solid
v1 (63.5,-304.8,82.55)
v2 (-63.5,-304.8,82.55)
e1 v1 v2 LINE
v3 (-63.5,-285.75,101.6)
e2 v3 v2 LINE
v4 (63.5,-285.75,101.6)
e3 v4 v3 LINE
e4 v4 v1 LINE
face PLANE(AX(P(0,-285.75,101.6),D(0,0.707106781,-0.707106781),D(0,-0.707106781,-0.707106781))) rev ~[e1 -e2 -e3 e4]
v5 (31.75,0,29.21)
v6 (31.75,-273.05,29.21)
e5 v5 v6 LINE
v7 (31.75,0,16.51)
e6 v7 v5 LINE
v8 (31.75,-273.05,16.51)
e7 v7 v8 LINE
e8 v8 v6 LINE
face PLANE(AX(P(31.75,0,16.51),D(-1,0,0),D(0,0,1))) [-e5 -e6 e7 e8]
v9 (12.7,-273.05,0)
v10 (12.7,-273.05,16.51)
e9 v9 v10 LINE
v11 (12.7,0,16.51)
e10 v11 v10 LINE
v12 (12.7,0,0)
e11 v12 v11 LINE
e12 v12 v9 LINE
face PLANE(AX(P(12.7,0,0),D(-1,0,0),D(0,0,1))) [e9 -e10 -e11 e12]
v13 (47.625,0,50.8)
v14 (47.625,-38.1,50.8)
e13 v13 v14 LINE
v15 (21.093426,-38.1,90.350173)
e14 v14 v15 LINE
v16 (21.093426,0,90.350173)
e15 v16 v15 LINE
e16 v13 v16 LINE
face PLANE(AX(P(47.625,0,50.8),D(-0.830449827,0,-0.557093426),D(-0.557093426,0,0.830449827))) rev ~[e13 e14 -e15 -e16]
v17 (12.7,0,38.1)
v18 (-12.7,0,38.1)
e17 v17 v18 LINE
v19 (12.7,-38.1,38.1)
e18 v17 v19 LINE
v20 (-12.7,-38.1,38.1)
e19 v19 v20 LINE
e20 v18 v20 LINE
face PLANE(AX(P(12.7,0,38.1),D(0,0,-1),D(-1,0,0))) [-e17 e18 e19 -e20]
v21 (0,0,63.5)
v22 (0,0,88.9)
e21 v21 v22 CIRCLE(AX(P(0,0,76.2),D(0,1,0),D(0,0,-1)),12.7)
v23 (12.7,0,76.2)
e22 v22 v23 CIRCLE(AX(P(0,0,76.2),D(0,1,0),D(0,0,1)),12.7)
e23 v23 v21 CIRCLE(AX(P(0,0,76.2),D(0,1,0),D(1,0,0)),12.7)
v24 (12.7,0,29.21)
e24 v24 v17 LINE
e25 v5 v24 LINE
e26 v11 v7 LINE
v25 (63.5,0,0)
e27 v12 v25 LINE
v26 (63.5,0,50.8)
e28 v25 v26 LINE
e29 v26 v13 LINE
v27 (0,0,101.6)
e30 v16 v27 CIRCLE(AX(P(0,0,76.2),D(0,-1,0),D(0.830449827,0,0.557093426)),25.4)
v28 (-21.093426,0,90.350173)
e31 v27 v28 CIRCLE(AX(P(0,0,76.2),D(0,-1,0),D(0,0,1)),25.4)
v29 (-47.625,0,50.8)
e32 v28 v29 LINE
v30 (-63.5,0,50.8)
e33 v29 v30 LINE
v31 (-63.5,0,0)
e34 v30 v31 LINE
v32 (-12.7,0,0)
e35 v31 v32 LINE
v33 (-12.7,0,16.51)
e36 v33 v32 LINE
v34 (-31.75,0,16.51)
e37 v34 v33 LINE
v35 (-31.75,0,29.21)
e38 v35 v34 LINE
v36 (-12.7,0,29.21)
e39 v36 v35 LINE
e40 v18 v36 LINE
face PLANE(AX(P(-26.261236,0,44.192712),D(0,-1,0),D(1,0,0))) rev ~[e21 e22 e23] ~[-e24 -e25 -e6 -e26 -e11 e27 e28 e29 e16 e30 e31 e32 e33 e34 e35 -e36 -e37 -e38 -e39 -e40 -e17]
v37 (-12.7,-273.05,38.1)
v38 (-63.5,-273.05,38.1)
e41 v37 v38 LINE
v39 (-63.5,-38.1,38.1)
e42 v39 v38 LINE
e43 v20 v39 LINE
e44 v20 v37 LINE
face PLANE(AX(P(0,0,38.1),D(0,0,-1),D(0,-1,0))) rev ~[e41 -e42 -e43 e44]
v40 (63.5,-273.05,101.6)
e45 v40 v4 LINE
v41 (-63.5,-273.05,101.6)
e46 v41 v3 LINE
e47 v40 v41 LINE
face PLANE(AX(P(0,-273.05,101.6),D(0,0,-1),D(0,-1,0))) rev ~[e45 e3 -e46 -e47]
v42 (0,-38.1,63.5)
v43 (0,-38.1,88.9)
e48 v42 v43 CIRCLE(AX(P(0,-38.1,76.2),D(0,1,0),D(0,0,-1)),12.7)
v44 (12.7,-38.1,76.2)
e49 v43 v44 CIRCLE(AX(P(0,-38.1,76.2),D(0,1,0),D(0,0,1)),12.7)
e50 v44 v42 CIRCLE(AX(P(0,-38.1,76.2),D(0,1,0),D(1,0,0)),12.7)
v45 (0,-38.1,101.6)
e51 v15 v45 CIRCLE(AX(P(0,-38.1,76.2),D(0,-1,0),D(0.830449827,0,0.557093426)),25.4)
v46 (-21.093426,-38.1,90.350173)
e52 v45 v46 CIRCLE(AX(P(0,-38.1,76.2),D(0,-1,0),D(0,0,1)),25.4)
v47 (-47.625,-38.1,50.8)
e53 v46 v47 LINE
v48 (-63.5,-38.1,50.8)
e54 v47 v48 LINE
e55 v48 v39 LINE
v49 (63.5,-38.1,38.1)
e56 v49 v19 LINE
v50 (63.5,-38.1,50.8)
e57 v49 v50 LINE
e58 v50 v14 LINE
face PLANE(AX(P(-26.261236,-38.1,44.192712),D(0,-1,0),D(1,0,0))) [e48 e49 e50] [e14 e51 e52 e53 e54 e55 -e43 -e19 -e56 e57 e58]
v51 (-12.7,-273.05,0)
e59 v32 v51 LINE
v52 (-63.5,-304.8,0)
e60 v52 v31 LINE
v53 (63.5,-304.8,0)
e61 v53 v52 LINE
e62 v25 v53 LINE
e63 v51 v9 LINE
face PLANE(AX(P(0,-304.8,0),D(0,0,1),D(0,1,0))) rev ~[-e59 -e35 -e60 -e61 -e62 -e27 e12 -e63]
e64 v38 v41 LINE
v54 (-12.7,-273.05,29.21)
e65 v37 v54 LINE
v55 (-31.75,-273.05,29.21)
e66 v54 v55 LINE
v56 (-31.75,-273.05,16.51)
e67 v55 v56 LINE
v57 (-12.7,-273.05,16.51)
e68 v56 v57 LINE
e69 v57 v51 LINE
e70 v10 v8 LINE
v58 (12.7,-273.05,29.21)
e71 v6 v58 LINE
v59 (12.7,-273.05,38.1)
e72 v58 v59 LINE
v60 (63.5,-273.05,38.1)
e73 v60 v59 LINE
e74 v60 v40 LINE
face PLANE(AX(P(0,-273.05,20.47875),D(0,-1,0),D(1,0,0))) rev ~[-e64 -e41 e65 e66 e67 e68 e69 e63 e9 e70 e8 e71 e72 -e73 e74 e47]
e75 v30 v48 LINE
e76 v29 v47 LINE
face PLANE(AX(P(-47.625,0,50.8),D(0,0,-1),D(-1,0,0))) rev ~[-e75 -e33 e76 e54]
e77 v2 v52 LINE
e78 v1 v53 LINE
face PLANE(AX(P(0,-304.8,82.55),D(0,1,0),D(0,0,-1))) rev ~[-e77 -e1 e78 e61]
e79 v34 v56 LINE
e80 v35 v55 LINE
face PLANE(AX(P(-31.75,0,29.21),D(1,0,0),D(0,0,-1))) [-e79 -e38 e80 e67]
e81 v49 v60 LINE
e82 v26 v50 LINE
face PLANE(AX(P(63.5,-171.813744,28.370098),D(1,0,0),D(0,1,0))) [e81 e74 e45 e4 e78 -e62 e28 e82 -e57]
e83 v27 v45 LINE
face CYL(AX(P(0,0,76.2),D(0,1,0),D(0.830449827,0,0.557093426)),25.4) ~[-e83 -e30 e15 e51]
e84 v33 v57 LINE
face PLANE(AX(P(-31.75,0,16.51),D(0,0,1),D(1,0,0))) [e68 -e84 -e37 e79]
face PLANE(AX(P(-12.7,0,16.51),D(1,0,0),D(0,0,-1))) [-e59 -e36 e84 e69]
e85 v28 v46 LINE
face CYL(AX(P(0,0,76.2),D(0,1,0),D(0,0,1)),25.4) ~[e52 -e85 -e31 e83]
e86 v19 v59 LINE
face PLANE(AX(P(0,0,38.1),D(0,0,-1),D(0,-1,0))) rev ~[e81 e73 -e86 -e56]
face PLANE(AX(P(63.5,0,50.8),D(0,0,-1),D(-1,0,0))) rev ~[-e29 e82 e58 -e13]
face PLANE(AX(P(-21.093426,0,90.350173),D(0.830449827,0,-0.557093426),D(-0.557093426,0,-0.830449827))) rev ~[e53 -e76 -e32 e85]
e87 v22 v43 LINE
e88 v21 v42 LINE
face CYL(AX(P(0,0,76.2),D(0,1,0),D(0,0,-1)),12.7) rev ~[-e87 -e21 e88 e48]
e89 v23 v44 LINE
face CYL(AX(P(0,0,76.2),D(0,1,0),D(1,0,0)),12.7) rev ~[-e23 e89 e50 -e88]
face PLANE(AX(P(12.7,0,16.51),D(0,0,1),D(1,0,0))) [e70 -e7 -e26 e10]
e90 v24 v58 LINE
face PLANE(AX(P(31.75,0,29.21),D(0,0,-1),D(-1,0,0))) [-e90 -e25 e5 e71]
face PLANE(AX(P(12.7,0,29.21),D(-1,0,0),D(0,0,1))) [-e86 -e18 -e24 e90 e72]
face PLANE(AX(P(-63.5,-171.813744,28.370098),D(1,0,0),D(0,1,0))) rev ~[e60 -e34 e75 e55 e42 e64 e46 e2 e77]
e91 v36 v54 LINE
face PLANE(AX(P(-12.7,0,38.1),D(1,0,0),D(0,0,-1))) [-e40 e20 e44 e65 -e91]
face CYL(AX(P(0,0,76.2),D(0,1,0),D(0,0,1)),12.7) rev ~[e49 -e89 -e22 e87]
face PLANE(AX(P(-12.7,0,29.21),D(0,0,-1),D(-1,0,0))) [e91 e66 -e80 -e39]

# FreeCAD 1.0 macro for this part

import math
import FreeCAD as App
import Part
import Sketcher

V = App.Vector
Q = App.Units.Quantity


def add_polygon(sketch, points):
    """Adds a closed chain of lines whose ends are joined by coincident constraints."""
    first, n = sketch.GeometryCount, len(points)
    for a, b in zip(points, points[1:] + points[:1]):
        sketch.addGeometry(Part.LineSegment(App.Vector(*a, 0), App.Vector(*b, 0)), False)
    for i in range(n):
        sketch.addConstraint(Sketcher.Constraint("Coincident", first + i, 2, first + (i + 1) % n, 1))

doc = App.newDocument("Part")
body = doc.addObject("PartDesign::Body", "Body")

sketch1 = body.newObject("Sketcher::SketchObject", "Sketch")
sketch1.AttachmentSupport = (doc.getObject("XZ_Plane"), [""])
sketch1.MapMode = "FlatFace"
sketch1.addGeometry(Part.LineSegment(V(-63.5, 50.8, 0), V(-63.5, 0, 0)), False)
sketch1.addGeometry(Part.LineSegment(V(-63.5, 0, 0), V(63.5, 0, 0)), False)
sketch1.addGeometry(Part.LineSegment(V(63.5, 0, 0), V(63.5, 50.8, 0)), False)
sketch1.addGeometry(Part.LineSegment(V(63.5, 50.8, 0), V(47.625, 50.8, 0)), False)
sketch1.addGeometry(Part.LineSegment(V(47.625, 50.8, 0), V(21.093426, 90.350173, 0)), False)
sketch1.addGeometry(Part.ArcOfCircle(Part.Circle(V(0, 76.2, 0), V(0, 0, 1), 25.4), math.radians(33.855026), math.radians(90)), False)
sketch1.addGeometry(Part.ArcOfCircle(Part.Circle(V(0, 76.2, 0), V(0, 0, 1), 25.4), math.radians(90), math.radians(146.144974)), False)
sketch1.addGeometry(Part.LineSegment(V(-21.093426, 90.350173, 0), V(-47.625, 50.8, 0)), False)
sketch1.addGeometry(Part.LineSegment(V(-47.625, 50.8, 0), V(-63.5, 50.8, 0)), False)
sketch1.addGeometry(Part.ArcOfCircle(Part.Circle(V(0, 76.2, 0), V(0, 0, 1), 12.7), math.radians(90), math.radians(270)), False)
sketch1.addGeometry(Part.ArcOfCircle(Part.Circle(V(0, 76.2, 0), V(0, 0, 1), 12.7), math.radians(0), math.radians(90)), False)
sketch1.addGeometry(Part.ArcOfCircle(Part.Circle(V(0, 76.2, 0), V(0, 0, 1), 12.7), math.radians(-90), math.radians(0)), False)
sketch1.addConstraint(Sketcher.Constraint("Coincident", 0, 2, 1, 1))
sketch1.addConstraint(Sketcher.Constraint("Coincident", 1, 2, 2, 1))
sketch1.addConstraint(Sketcher.Constraint("Coincident", 2, 2, 3, 1))
sketch1.addConstraint(Sketcher.Constraint("Coincident", 3, 2, 4, 1))
sketch1.addConstraint(Sketcher.Constraint("Tangent", 4, 2, 5, 1))
sketch1.addConstraint(Sketcher.Constraint("Tangent", 5, 2, 6, 1))
sketch1.addConstraint(Sketcher.Constraint("Tangent", 6, 2, 7, 1))
sketch1.addConstraint(Sketcher.Constraint("Coincident", 7, 2, 8, 1))
sketch1.addConstraint(Sketcher.Constraint("Coincident", 8, 2, 0, 1))
sketch1.addConstraint(Sketcher.Constraint("Tangent", 9, 1, 10, 2))
sketch1.addConstraint(Sketcher.Constraint("Tangent", 10, 1, 11, 2))
sketch1.addConstraint(Sketcher.Constraint("Tangent", 11, 1, 9, 2))
sketch1.addConstraint(Sketcher.Constraint("Vertical", 0))
sketch1.addConstraint(Sketcher.Constraint("Horizontal", 1))
sketch1.addConstraint(Sketcher.Constraint("Vertical", 2))
sketch1.addConstraint(Sketcher.Constraint("Horizontal", 3))
sketch1.addConstraint(Sketcher.Constraint("Horizontal", 8))
sketch1.addConstraint(Sketcher.Constraint("Coincident", 9, 3, 5, 3))
sketch1.addConstraint(Sketcher.Constraint("Equal", 5, 6))
sketch1.addConstraint(Sketcher.Constraint("Symmetric", 0, 2, 1, 2, -1, 1))
sketch1.addConstraint(Sketcher.Constraint("Symmetric", 4, 2, 6, 2, -2))
sketch1.addConstraint(Sketcher.Constraint("PointOnObject", 5, 2, -2))
sketch1.addConstraint(Sketcher.Constraint("PointOnObject", 9, 1, -2))
sketch1.addConstraint(Sketcher.Constraint("PointOnObject", 11, 1, -2))
sketch1.addConstraint(Sketcher.Constraint("Horizontal", 3, 2, 7, 2))
sketch1.addConstraint(Sketcher.Constraint("Horizontal", 11, 3, 10, 1))
sketch1.addConstraint(Sketcher.Constraint("Radius", 5, Q("1 in")))
sketch1.addConstraint(Sketcher.Constraint("Radius", 9, Q("0.5 in")))
sketch1.addConstraint(Sketcher.Constraint("DistanceX", 1, 1, 1, 2, Q("5 in")))
sketch1.addConstraint(Sketcher.Constraint("DistanceY", 0, 2, 0, 1, Q("2 in")))
sketch1.addConstraint(Sketcher.Constraint("DistanceY", -1, 1, 5, 3, Q("3 in")))
sketch1.addConstraint(Sketcher.Constraint("DistanceX", 3, 2, 3, 1, Q("0.625 in")))
pad1 = body.newObject("PartDesign::Pad", "Pad")
pad1.Profile = sketch1
pad1.Length = Q("1.5 in")

sketch2 = body.newObject("Sketcher::SketchObject", "Sketch001")
sketch2.AttachmentSupport = (doc.getObject("YZ_Plane"), [""])
sketch2.MapMode = "FlatFace"
add_polygon(sketch2, [(-304.8, 0), (0, 0), (0, 38.1), (-273.05, 38.1), (-273.05, 101.6), (-285.75, 101.6), (-304.8, 82.55)])
sketch2.addConstraint(Sketcher.Constraint("Horizontal", 0))
sketch2.addConstraint(Sketcher.Constraint("Vertical", 1))
sketch2.addConstraint(Sketcher.Constraint("Horizontal", 2))
sketch2.addConstraint(Sketcher.Constraint("Vertical", 3))
sketch2.addConstraint(Sketcher.Constraint("Horizontal", 4))
sketch2.addConstraint(Sketcher.Constraint("Vertical", 6))
sketch2.addConstraint(Sketcher.Constraint("Coincident", 0, 2, -1, 1))
sketch2.addConstraint(Sketcher.Constraint("DistanceX", 0, 1, 0, 2, Q("12 in")))
sketch2.addConstraint(Sketcher.Constraint("DistanceX", 4, 2, 4, 1, Q("0.5 in")))
sketch2.addConstraint(Sketcher.Constraint("DistanceY", 1, 1, 1, 2, Q("1.5 in")))
sketch2.addConstraint(Sketcher.Constraint("DistanceY", 3, 1, 3, 2, Q("2.5 in")))
sketch2.addConstraint(Sketcher.Constraint("Angle", 5, Q("-135 deg")))
sketch2.addConstraint(Sketcher.Constraint("DistanceX", 2, 2, 2, 1, Q("10.75 in")))
pad2 = body.newObject("PartDesign::Pad", "Pad001")
pad2.Profile = sketch2
pad2.Type = "TwoLengths"
pad2.Length = Q("2.5 in")
pad2.Length2 = Q("2.5 in")
pad2.Reversed = True

sketch3 = body.newObject("Sketcher::SketchObject", "Sketch002")
sketch3.AttachmentSupport = (doc.getObject("XZ_Plane"), [""])
sketch3.MapMode = "FlatFace"
add_polygon(sketch3, [(-12.7, 16.51), (-12.7, 0), (12.7, 0), (12.7, 16.51), (31.75, 16.51), (31.75, 29.21), (12.7, 29.21), (12.7, 38.1), (-12.7, 38.1), (-12.7, 29.21), (-31.75, 29.21), (-31.75, 16.51)])
sketch3.addConstraint(Sketcher.Constraint("Vertical", 0))
sketch3.addConstraint(Sketcher.Constraint("Horizontal", 1))
sketch3.addConstraint(Sketcher.Constraint("Vertical", 2))
sketch3.addConstraint(Sketcher.Constraint("Horizontal", 3))
sketch3.addConstraint(Sketcher.Constraint("Vertical", 4))
sketch3.addConstraint(Sketcher.Constraint("Horizontal", 5))
sketch3.addConstraint(Sketcher.Constraint("Vertical", 6))
sketch3.addConstraint(Sketcher.Constraint("Horizontal", 7))
sketch3.addConstraint(Sketcher.Constraint("Vertical", 8))
sketch3.addConstraint(Sketcher.Constraint("Horizontal", 9))
sketch3.addConstraint(Sketcher.Constraint("Vertical", 10))
sketch3.addConstraint(Sketcher.Constraint("Horizontal", 11))
sketch3.addConstraint(Sketcher.Constraint("Symmetric", 0, 2, 1, 2, -1, 1))
sketch3.addConstraint(Sketcher.Constraint("Symmetric", 5, 2, 8, 2, -2))
sketch3.addConstraint(Sketcher.Constraint("Symmetric", 3, 2, 10, 2, -2))
sketch3.addConstraint(Sketcher.Constraint("Vertical", 2, 2, 5, 2))
sketch3.addConstraint(Sketcher.Constraint("DistanceX", 1, 1, 1, 2, Q("1 in")))
sketch3.addConstraint(Sketcher.Constraint("DistanceY", 4, 1, 4, 2, Q("0.5 in")))
sketch3.addConstraint(Sketcher.Constraint("DistanceX", 3, 1, 3, 2, Q("0.75 in")))
sketch3.addConstraint(Sketcher.Constraint("DistanceY", 0, 2, 0, 1, Q("0.65 in")))
sketch3.addConstraint(Sketcher.Constraint("DistanceY", 6, 1, 6, 2, Q("0.35 in")))
pocket1 = body.newObject("PartDesign::Pocket", "Pocket")
pocket1.Profile = sketch3
pocket1.Length = Q("10.75 in")
pocket1.Reversed = True

doc.recompute()
